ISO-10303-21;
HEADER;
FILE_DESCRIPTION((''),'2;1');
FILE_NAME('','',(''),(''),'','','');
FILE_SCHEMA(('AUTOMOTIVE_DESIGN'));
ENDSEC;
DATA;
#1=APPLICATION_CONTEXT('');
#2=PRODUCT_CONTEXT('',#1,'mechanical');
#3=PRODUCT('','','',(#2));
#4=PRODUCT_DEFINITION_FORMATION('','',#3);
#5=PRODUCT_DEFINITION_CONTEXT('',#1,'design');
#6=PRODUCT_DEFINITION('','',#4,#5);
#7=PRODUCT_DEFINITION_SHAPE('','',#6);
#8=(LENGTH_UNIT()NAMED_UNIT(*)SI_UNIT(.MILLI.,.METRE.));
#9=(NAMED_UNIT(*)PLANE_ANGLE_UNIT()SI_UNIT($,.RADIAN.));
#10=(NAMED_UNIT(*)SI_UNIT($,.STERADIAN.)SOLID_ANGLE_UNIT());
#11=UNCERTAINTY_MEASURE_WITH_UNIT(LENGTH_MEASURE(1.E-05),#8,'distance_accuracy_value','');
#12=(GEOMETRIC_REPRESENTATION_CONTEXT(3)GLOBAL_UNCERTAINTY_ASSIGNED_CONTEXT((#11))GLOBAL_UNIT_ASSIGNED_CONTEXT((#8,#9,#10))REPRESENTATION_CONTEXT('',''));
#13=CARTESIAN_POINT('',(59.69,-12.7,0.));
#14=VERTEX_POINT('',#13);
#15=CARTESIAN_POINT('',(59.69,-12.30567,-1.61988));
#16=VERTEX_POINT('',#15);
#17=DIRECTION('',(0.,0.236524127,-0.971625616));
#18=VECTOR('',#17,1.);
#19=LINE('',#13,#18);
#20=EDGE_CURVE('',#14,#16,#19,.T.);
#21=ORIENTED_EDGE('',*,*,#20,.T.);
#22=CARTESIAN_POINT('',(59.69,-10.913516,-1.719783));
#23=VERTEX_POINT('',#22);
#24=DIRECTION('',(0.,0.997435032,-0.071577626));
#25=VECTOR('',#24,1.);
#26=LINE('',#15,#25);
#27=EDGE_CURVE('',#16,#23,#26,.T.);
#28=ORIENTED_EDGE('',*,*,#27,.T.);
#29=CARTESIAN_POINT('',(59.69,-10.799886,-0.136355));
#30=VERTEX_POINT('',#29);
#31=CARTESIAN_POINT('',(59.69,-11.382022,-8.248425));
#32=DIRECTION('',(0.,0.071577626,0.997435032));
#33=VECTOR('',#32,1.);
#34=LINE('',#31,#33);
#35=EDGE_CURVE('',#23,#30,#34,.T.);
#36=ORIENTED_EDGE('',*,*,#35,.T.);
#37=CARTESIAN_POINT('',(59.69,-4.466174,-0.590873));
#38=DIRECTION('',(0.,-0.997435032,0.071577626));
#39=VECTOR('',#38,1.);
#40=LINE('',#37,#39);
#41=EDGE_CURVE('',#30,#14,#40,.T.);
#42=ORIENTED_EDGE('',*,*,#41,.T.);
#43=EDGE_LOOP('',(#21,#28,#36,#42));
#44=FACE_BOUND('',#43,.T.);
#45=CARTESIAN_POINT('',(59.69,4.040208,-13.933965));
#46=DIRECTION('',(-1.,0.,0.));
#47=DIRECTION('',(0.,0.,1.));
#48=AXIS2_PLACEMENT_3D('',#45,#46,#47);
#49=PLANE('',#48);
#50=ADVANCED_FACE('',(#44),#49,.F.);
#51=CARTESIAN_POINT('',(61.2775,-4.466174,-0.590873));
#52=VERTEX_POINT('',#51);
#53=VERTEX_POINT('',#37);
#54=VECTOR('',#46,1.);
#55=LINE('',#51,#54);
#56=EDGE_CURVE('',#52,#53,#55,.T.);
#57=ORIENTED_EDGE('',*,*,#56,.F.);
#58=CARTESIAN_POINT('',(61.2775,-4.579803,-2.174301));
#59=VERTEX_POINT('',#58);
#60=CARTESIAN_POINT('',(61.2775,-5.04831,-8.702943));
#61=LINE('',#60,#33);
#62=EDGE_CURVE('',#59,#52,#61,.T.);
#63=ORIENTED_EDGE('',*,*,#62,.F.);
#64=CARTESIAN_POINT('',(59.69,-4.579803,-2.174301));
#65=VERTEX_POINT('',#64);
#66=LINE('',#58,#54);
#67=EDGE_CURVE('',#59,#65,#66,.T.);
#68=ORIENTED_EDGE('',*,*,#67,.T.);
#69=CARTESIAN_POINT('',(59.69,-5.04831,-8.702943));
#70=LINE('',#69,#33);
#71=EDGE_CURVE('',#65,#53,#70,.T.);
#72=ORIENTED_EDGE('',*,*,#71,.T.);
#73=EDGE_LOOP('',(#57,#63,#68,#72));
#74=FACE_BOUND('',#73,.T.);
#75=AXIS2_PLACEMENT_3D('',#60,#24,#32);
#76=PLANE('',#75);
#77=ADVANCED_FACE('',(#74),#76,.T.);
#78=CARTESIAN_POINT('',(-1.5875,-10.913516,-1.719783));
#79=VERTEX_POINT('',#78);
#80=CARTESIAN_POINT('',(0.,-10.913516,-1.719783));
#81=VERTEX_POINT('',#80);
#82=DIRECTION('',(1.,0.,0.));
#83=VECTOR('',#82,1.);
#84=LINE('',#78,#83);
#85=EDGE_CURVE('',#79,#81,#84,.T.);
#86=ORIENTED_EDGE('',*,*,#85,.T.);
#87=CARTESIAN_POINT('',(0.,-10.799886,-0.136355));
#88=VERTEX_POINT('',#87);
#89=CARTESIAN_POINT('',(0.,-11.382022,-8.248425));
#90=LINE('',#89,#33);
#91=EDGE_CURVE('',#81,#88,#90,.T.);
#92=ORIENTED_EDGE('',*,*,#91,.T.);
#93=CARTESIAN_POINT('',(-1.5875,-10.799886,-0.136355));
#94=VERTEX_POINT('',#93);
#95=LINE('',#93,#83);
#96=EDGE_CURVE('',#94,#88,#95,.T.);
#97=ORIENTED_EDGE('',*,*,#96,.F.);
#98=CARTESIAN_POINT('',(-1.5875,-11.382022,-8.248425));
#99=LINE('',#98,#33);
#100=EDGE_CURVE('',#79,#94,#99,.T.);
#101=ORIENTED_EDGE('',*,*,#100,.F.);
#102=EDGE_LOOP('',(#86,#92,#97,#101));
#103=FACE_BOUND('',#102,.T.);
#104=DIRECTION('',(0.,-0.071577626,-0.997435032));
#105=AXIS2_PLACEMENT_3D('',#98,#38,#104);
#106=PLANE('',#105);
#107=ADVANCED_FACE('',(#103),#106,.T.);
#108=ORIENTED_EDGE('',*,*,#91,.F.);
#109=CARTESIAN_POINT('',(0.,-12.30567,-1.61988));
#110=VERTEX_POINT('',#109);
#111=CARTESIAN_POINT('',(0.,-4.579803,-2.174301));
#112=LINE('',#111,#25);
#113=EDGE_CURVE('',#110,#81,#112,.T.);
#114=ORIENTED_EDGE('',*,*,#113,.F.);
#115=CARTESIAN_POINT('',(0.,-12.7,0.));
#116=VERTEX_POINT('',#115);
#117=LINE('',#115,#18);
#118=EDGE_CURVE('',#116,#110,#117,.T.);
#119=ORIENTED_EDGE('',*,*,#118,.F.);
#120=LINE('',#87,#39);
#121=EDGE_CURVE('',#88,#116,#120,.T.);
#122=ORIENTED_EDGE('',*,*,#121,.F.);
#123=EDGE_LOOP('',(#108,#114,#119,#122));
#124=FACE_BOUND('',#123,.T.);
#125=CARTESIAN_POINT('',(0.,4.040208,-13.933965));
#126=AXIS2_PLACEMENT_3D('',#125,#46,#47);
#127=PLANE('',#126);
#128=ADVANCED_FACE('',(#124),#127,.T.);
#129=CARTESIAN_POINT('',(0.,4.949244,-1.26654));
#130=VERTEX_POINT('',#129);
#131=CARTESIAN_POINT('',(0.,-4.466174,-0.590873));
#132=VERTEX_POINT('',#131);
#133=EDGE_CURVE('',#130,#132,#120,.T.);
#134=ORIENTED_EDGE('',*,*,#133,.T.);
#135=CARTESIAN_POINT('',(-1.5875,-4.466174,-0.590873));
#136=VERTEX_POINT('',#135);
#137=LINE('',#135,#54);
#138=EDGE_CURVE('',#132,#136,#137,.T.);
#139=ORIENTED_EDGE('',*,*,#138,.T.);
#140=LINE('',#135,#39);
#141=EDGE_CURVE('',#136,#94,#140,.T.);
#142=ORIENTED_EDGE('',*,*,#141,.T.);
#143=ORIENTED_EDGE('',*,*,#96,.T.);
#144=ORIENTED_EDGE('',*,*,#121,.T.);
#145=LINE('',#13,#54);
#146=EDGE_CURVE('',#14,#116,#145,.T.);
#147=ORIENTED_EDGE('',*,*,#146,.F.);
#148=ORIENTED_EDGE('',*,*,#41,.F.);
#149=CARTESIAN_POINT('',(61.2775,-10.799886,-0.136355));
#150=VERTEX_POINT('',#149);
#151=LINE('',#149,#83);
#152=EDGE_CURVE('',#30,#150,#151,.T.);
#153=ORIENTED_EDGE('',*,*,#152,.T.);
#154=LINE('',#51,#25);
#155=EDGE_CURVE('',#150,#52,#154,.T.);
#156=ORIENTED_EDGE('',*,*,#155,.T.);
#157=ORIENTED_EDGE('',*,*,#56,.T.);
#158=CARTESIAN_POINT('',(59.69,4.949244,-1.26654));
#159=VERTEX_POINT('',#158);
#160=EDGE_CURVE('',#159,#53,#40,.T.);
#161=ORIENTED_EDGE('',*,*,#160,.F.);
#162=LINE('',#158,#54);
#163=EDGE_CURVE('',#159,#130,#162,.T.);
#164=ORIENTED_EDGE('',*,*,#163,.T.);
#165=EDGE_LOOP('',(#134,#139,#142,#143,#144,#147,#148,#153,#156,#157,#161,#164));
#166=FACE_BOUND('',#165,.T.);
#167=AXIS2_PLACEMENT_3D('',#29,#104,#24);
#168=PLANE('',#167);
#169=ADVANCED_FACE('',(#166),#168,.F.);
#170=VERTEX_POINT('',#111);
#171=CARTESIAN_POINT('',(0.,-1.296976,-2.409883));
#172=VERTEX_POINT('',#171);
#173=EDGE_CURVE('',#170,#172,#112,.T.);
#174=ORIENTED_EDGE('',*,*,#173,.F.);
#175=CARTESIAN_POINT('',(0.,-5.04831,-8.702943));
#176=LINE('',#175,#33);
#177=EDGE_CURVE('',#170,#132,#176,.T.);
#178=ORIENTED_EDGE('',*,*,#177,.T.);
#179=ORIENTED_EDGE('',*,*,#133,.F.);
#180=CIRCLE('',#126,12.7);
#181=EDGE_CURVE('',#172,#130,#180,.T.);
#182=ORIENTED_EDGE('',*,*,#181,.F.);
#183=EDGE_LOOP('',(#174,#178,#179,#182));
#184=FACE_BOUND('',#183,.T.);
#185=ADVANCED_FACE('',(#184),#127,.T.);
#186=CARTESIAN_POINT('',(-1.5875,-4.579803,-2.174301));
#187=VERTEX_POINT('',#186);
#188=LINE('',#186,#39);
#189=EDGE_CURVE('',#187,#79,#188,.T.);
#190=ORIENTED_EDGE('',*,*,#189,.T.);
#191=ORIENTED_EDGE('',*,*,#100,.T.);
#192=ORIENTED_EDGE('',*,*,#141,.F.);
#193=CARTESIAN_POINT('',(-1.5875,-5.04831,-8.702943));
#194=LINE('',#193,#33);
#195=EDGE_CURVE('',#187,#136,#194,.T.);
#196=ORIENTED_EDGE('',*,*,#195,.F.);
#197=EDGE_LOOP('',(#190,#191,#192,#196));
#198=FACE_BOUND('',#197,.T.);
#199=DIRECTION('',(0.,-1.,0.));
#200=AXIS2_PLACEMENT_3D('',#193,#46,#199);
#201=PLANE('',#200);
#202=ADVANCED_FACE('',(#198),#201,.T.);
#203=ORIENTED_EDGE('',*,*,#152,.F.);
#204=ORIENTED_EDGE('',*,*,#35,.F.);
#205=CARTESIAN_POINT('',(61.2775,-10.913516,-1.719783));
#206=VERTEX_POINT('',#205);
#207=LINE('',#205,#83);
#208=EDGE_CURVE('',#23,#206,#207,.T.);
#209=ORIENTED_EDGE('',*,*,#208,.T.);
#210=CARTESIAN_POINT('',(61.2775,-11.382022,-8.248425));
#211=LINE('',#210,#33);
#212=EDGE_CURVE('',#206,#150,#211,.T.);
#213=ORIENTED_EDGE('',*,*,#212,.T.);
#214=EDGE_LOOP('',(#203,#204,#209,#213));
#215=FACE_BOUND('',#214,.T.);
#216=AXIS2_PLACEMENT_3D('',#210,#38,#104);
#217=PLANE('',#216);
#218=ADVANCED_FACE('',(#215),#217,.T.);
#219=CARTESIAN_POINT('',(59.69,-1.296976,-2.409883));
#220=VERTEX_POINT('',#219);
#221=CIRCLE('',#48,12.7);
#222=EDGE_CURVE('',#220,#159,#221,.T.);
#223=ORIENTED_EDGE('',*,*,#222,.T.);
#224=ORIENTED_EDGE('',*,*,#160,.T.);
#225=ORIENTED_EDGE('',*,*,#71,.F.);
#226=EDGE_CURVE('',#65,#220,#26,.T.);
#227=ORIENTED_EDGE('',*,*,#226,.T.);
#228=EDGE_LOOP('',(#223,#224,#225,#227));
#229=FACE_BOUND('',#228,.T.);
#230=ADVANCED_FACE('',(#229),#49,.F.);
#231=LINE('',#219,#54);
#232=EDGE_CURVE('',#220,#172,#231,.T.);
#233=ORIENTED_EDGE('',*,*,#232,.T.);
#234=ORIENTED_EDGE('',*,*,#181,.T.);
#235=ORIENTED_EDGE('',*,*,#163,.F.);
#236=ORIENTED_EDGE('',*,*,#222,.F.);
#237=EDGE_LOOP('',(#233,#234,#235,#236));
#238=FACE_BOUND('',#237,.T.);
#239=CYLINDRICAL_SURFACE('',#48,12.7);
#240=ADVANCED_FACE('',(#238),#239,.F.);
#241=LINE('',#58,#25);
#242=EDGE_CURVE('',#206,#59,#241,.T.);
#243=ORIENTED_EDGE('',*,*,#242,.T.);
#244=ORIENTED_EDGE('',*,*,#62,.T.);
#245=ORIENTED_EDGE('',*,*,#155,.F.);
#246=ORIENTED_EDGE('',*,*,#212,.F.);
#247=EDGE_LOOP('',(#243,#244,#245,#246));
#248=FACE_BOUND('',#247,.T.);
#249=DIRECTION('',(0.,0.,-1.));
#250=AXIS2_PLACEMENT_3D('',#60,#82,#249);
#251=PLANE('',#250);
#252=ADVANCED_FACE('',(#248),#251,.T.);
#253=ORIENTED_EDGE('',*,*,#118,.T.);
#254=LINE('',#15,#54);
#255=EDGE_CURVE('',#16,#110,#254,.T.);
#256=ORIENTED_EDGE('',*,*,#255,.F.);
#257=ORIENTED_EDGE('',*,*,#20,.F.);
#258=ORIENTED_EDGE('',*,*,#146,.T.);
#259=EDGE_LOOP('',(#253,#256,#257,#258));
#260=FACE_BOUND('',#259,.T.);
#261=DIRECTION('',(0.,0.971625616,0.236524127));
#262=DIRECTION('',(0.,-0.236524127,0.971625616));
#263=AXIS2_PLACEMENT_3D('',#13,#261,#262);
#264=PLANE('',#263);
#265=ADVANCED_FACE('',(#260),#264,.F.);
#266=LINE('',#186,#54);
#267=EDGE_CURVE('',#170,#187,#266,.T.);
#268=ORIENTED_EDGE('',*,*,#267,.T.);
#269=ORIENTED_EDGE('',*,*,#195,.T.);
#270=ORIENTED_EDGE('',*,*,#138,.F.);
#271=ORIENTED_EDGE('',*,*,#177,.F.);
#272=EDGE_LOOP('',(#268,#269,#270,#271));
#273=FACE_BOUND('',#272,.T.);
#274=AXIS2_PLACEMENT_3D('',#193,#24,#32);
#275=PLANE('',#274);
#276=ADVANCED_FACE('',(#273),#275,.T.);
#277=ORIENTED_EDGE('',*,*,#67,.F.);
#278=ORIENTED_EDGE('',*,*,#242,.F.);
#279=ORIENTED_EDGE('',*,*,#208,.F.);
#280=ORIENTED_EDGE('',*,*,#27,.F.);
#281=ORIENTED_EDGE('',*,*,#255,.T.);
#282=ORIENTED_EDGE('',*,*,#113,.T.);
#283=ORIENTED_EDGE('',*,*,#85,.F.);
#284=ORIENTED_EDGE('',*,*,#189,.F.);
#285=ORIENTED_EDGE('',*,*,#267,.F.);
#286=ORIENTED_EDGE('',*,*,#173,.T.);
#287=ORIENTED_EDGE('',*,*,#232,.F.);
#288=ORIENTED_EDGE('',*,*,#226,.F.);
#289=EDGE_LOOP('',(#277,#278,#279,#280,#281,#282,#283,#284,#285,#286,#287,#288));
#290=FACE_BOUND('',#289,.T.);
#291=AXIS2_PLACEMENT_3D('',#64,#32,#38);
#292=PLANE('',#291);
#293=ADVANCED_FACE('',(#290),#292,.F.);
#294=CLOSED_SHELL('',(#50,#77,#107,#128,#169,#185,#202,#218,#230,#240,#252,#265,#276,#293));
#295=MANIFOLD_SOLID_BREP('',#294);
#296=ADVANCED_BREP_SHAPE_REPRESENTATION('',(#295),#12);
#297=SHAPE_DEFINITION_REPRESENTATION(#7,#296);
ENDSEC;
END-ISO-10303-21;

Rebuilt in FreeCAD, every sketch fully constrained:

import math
import FreeCAD as App
import Part
import Sketcher
from FreeCAD import Vector
Q = App.Units.Quantity

doc = App.newDocument("Part")
body = doc.addObject("PartDesign::Body", "Body")

# Sketch on YZ plane
sketch1 = body.newObject("Sketcher::SketchObject", "Sketch")
sketch1.AttachmentSupport = (doc.getObject("YZ_Plane"), [""])
sketch1.MapMode = "FlatFace"
sketch1.addGeometry([
    Part.LineSegment(Vector(-4.5, -0.6, 0), Vector(-10.8, -0.1, 0)),  # 0
    Part.LineSegment(Vector(-10.8, -0.1, 0), Vector(-12.7, 0, 0)),  # 1
    Part.LineSegment(Vector(-12.7, 0, 0), Vector(-12.3, -1.6, 0)),  # 2
    Part.LineSegment(Vector(-12.3, -1.6, 0), Vector(-4.6, -2.2, 0)),  # 3
    Part.LineSegment(Vector(-4.6, -2.2, 0), Vector(-1.3, -2.4, 0)),  # 4
    Part.ArcOfCircle(Part.Circle(Vector(4, -13.9, 0), Vector(0, 0, 1), 12.7), math.radians(86), math.radians(115)),  # 5
    Part.LineSegment(Vector(4.9, -1.3, 0), Vector(-4.5, -0.6, 0)),  # 6
], False)
sketch1.addConstraint([
    Sketcher.Constraint("Coincident", 0, 2, 1, 1),
    Sketcher.Constraint("Coincident", 1, 2, 2, 1),
    Sketcher.Constraint("Coincident", 2, 2, 3, 1),
    Sketcher.Constraint("Coincident", 3, 2, 4, 1),
    Sketcher.Constraint("Coincident", 4, 2, 5, 2),
    Sketcher.Constraint("Tangent", 5, 1, 6, 1),
    Sketcher.Constraint("Coincident", 6, 2, 0, 1),
    Sketcher.Constraint("PointOnObject", 1, 2, -1),
    Sketcher.Constraint("Parallel", 0, 1),
    Sketcher.Constraint("Parallel", 1, 3),
    Sketcher.Constraint("Parallel", 3, 4),
    Sketcher.Constraint("Parallel", 4, 6),
    Sketcher.Constraint("Radius", 5, Q("0.5 in")),
    Sketcher.Constraint("DistanceX", 1, 2, -1, 1, Q("0.5 in")),
    Sketcher.Constraint("Distance", 0, Q("0.25 in")),
    Sketcher.Constraint("Distance", 1, Q("0.075 in")),
    Sketcher.Constraint("DistanceY", 3, 2, -1, 1, Q("2.174301 mm")),
    Sketcher.Constraint("Distance", 4, Q("3.291269 mm")),
    Sketcher.Constraint("Distance", 6, Q("9.43963 mm")),
    Sketcher.Constraint("DistanceX", -1, 1, 5, 3, Q("4.040208 mm")),
    Sketcher.Constraint("DistanceX", 2, 2, -1, 1, Q("12.30567 mm")),
])
pad1 = body.newObject("PartDesign::Pad", "Pad")
pad1.Profile = sketch1
pad1.Length = Q("2.35 in")

# Sketch on an angled plane
sketch2 = body.newObject("Sketcher::SketchObject", "Sketch001")
sketch2.Placement = App.Placement(Vector(0, -0.065067, -0.906704), App.Rotation(Vector(1, 0, 0), Vector(0, 0.997435032, -0.071577626), Vector(0, 0.071577626, 0.997435032), "ZXY"))
sketch2.addGeometry([
    Part.LineSegment(Vector(-1.6, -4.4, 0), Vector(-1.6, -10.8, 0)),  # 0
    Part.LineSegment(Vector(-1.6, -10.8, 0), Vector(0, -10.8, 0)),  # 1
    Part.LineSegment(Vector(0, -10.8, 0), Vector(0, -4.4, 0)),  # 2
    Part.LineSegment(Vector(0, -4.4, 0), Vector(-1.6, -4.4, 0)),  # 3
    Part.LineSegment(Vector(59.7, -4.4, 0), Vector(59.7, -10.8, 0)),  # 4
    Part.LineSegment(Vector(59.7, -10.8, 0), Vector(61.3, -10.8, 0)),  # 5
    Part.LineSegment(Vector(61.3, -10.8, 0), Vector(61.3, -4.4, 0)),  # 6
    Part.LineSegment(Vector(61.3, -4.4, 0), Vector(59.7, -4.4, 0)),  # 7
], False)
sketch2.addConstraint([
    Sketcher.Constraint("Coincident", 0, 2, 1, 1),
    Sketcher.Constraint("Coincident", 1, 2, 2, 1),
    Sketcher.Constraint("Coincident", 2, 2, 3, 1),
    Sketcher.Constraint("Coincident", 3, 2, 0, 1),
    Sketcher.Constraint("Coincident", 4, 2, 5, 1),
    Sketcher.Constraint("Coincident", 5, 2, 6, 1),
    Sketcher.Constraint("Coincident", 6, 2, 7, 1),
    Sketcher.Constraint("Coincident", 7, 2, 4, 1),
    Sketcher.Constraint("Vertical", 0),
    Sketcher.Constraint("Horizontal", 1),
    Sketcher.Constraint("Vertical", 2),
    Sketcher.Constraint("Horizontal", 3),
    Sketcher.Constraint("Vertical", 4),
    Sketcher.Constraint("Horizontal", 5),
    Sketcher.Constraint("Vertical", 6),
    Sketcher.Constraint("Horizontal", 7),
    Sketcher.Constraint("PointOnObject", 1, 2, -2),
    Sketcher.Constraint("Horizontal", 1, 2, 4, 2),
    Sketcher.Constraint("Horizontal", 3, 2, 6, 2),
    Sketcher.Constraint("Equal", 3, 5),
    Sketcher.Constraint("DistanceY", 0, 2, 0, 1, Q("0.25 in")),
    Sketcher.Constraint("DistanceX", 1, 1, 1, 2, Q("0.0625 in")),
    Sketcher.Constraint("DistanceX", -1, 1, 4, 2, Q("2.35 in")),
    Sketcher.Constraint("DistanceY", 0, 2, -1, 1, Q("10.762425 mm")),
])
pad2 = body.newObject("PartDesign::Pad", "Pad001")
pad2.Profile = sketch2
pad2.Length = Q("0.0625 in")
pad2.Reversed = True

doc.recompute()
